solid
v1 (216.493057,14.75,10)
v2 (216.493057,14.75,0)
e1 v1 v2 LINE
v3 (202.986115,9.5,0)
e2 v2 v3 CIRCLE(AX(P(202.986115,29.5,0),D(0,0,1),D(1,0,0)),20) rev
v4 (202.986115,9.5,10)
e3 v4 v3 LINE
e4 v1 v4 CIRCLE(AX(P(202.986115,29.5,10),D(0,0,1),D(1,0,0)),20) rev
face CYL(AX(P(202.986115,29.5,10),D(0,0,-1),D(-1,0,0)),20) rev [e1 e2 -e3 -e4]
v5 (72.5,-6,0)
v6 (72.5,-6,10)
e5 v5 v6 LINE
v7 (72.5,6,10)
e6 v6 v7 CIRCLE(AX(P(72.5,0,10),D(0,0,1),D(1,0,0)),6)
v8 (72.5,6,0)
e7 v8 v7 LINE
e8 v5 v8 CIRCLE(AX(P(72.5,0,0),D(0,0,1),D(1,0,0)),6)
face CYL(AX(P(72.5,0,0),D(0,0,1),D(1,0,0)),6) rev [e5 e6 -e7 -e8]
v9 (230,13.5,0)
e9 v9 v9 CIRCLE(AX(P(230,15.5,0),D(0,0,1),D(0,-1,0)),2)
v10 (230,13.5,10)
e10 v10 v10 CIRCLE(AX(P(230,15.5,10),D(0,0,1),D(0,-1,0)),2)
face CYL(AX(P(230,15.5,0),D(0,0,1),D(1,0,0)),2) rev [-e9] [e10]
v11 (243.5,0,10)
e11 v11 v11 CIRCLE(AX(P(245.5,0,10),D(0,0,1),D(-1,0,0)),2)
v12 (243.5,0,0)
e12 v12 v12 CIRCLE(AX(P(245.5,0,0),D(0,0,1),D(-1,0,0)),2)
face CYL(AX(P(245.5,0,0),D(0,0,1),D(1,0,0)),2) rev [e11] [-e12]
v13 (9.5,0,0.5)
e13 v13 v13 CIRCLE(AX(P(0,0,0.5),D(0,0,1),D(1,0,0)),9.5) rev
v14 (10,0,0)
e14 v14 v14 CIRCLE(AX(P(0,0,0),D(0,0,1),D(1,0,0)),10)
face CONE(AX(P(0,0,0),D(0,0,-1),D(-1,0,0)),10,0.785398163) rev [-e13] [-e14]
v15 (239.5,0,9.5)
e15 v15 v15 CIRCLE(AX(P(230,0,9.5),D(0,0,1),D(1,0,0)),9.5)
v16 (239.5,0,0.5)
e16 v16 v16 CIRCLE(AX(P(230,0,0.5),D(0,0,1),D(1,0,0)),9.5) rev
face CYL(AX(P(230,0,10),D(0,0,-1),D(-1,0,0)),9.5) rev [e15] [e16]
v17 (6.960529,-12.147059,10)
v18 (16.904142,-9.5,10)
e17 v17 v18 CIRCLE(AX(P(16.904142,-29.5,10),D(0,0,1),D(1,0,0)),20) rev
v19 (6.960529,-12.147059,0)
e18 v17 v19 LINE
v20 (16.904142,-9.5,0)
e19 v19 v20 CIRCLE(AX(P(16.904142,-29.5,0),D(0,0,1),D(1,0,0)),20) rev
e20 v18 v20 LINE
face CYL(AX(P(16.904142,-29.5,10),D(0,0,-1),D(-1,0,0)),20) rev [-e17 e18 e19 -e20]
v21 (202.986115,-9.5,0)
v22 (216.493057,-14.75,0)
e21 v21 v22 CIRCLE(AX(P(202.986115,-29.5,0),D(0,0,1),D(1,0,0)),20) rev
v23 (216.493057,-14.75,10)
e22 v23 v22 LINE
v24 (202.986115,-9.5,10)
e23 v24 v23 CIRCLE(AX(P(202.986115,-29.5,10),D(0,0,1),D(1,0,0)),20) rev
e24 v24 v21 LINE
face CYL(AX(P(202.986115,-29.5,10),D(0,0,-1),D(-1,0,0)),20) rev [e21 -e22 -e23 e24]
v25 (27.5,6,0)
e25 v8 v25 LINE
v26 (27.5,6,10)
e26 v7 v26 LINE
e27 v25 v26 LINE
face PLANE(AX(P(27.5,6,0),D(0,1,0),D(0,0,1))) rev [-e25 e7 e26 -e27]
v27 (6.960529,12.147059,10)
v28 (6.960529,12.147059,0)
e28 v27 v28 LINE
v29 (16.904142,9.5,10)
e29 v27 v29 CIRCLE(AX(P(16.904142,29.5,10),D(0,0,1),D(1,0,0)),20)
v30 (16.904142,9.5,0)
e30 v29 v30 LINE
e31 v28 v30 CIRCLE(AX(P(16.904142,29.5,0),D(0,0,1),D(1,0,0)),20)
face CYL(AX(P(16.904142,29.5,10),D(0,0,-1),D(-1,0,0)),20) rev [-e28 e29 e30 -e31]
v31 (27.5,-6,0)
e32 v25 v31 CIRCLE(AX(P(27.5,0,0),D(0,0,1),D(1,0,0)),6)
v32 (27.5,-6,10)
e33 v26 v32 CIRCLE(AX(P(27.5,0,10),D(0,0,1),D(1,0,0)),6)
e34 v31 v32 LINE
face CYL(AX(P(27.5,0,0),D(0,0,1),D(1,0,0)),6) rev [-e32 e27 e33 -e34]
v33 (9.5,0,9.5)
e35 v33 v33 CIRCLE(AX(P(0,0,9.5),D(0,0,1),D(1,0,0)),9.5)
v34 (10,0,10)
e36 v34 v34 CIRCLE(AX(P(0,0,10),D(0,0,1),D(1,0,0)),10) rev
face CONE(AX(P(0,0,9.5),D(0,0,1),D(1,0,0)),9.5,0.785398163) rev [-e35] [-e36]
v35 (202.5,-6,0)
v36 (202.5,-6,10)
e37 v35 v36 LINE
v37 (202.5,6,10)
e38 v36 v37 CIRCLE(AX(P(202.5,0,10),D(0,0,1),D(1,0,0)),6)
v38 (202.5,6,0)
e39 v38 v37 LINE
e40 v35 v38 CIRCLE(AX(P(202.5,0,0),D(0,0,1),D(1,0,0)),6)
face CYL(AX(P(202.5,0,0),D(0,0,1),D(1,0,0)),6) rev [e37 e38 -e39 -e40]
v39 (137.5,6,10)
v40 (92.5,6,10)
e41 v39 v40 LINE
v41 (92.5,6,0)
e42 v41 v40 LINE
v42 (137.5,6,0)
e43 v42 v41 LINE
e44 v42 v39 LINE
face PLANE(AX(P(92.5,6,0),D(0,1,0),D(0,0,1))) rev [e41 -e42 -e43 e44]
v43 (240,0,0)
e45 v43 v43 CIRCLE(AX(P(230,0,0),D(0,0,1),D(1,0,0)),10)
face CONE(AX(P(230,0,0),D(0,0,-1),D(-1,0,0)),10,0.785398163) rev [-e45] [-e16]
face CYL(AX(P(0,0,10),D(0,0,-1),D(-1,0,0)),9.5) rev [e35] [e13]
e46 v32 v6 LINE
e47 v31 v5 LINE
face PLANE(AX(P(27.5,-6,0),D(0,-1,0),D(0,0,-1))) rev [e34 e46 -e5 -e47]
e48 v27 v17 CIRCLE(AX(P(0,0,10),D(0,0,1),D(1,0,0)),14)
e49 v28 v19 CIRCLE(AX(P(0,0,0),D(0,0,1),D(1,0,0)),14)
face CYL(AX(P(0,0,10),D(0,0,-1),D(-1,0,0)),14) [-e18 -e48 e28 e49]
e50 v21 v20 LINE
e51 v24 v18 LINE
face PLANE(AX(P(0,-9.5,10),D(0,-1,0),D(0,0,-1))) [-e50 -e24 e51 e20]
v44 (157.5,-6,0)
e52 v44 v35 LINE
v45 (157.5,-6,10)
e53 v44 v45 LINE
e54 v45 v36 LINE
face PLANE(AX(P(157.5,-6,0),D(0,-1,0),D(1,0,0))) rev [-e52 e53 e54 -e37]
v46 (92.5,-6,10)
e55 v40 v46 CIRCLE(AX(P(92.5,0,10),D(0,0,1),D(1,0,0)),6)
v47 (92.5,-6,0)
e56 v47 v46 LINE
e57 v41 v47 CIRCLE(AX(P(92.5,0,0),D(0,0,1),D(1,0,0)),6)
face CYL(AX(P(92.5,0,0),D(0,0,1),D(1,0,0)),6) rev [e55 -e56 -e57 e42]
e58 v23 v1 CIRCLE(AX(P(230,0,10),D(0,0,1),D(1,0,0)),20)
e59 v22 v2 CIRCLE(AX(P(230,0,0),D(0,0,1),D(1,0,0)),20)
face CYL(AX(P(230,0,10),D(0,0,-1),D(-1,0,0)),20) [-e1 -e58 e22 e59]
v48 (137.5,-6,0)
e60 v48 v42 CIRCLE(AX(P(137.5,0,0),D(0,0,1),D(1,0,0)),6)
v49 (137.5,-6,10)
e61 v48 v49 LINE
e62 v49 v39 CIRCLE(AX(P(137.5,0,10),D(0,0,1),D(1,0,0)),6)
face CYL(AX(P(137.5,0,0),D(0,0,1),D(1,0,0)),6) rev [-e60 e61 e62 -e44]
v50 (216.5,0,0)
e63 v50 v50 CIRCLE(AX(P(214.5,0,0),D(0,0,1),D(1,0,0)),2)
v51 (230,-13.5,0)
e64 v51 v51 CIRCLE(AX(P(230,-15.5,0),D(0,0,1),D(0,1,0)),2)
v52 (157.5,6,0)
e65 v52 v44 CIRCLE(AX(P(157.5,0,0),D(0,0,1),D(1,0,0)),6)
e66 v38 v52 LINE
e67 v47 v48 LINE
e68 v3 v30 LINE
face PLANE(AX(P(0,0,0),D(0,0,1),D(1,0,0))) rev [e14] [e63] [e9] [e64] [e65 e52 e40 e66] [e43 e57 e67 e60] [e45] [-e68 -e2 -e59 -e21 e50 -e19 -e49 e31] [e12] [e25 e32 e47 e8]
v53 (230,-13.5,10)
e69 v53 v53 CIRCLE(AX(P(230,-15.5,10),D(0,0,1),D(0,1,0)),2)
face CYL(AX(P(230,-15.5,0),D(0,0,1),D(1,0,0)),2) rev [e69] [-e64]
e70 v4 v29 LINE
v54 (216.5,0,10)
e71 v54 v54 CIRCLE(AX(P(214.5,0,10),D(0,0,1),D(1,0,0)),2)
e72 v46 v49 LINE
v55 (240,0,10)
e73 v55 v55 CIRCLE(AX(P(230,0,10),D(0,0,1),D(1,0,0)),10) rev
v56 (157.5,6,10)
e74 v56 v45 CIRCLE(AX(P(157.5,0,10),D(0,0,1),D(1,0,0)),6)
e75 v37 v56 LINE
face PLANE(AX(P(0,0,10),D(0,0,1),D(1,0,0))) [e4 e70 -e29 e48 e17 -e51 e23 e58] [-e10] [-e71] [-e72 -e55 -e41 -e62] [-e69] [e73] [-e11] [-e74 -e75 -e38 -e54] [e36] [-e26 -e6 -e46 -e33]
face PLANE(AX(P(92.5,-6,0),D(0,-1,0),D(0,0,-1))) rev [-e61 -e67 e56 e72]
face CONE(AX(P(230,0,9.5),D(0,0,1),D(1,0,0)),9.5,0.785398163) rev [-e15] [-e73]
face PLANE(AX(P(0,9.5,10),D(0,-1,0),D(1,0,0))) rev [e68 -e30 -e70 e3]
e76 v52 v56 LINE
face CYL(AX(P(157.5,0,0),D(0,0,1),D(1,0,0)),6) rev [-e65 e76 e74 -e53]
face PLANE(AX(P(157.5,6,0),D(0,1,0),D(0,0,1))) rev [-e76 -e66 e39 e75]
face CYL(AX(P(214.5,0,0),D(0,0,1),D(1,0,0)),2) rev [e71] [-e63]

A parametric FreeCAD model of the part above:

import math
import FreeCAD as App
import Part
import Sketcher
Q = App.Units.Quantity


def edges_at(feature, points):
    """Names of the edges that pass closest to the given points."""
    edges = feature.Shape.Edges
    near = lambda p: min(range(len(edges)), key=lambda i: edges[i].distToShape(Part.Vertex(*p))[0])
    return sorted({f"Edge{near(p) + 1}" for p in points})

doc = App.newDocument("Part")
params = doc.addObject("Spreadsheet::Sheet", "Params")
for row, (alias, value) in enumerate([
    ("sketch1_diameter", "19 mm"),
    ("sketch1_radius", "20 mm"),
    ("sketch1_radius2", "14 mm"),
    ("pad1_length", "10 mm"),
    ("chamfer_size", "0.5 mm"),
    ("sketch2_radius", "6 mm"),
    ("sketch2_width", "45 mm"),
    ("pocket1_length", "10 mm"),
    ("sketch3_diameter", "4 mm"),
    ("pocket2_length", "10 mm"),
    ("chamfer2_size", "0.5 mm"),
    ("sketch4_diameter", "4 mm"),
    ("pocket3_length", "10 mm"),
    ("chamfer3_size", "0.5 mm"),
    ("sketch5_diameter", "4 mm"),
    ("pad2_length", "10 mm"),
    ("sketch6_diameter", "4 mm"),
    ("pocket4_length", "10 mm"),
], start=1):
    params.set(f"A{row}", alias)
    params.set(f"B{row}", "=" + value)
    params.setAlias(f"B{row}", alias)

body = doc.addObject("PartDesign::Body", "Body")

sketch1 = doc.addObject("Sketcher::SketchObject", "Sketch")
body.addObject(sketch1)
sketch1.AttachmentSupport = (doc.XY_Plane, [""])
sketch1.MapMode = "FlatFace"
sketch1.addGeometry(Part.ArcOfCircle(Part.Circle(App.Vector(203, -29.5, 0), App.Vector(0, 0, 1), 20), math.radians(48), math.radians(90)), False)
sketch1.addGeometry(Part.ArcOfCircle(Part.Circle(App.Vector(230, 0, 0), App.Vector(0, 0, 1), 20), math.radians(-132), math.radians(132)), False)
sketch1.addGeometry(Part.ArcOfCircle(Part.Circle(App.Vector(203, 29.5, 0), App.Vector(0, 0, 1), 20), math.radians(-90), math.radians(-48)), False)
sketch1.addGeometry(Part.LineSegment(App.Vector(203, 9.5, 0), App.Vector(16.9, 9.5, 0)), False)
sketch1.addGeometry(Part.ArcOfCircle(Part.Circle(App.Vector(16.9, 29.5, 0), App.Vector(0, 0, 1), 20), math.radians(-120), math.radians(-90)), False)
sketch1.addGeometry(Part.ArcOfCircle(Part.Circle(App.Vector(0, 0, 0), App.Vector(0, 0, 1), 14), math.radians(60), math.radians(91)), False)
sketch1.addGeometry(Part.ArcOfCircle(Part.Circle(App.Vector(0, 0, 0), App.Vector(0, 0, 1), 14), math.radians(91), math.radians(284)), False)
sketch1.addGeometry(Part.ArcOfCircle(Part.Circle(App.Vector(0, 0, 0), App.Vector(0, 0, 1), 14), math.radians(-75.85), math.radians(-60.19)), False)
sketch1.addGeometry(Part.ArcOfCircle(Part.Circle(App.Vector(16.9, -29.5, 0), App.Vector(0, 0, 1), 20), math.radians(90), math.radians(120)), False)
sketch1.addGeometry(Part.LineSegment(App.Vector(16.9, -9.5, 0), App.Vector(203, -9.5, 0)), False)
sketch1.addGeometry(Part.Circle(App.Vector(0, 0, 0), App.Vector(0, 0, 1), 9.5), False)
sketch1.addGeometry(Part.Circle(App.Vector(230, 0, 0), App.Vector(0, 0, 1), 9.5), False)
sketch1.addConstraint(Sketcher.Constraint("Tangent", 0, 1, 1, 1))
sketch1.addConstraint(Sketcher.Constraint("Tangent", 1, 2, 2, 2))
sketch1.addConstraint(Sketcher.Constraint("Tangent", 2, 1, 3, 1))
sketch1.addConstraint(Sketcher.Constraint("Tangent", 3, 2, 4, 2))
sketch1.addConstraint(Sketcher.Constraint("Tangent", 4, 1, 5, 1))
sketch1.addConstraint(Sketcher.Constraint("Tangent", 5, 2, 6, 1))
sketch1.addConstraint(Sketcher.Constraint("Tangent", 6, 2, 7, 1))
sketch1.addConstraint(Sketcher.Constraint("Tangent", 7, 2, 8, 2))
sketch1.addConstraint(Sketcher.Constraint("Tangent", 8, 1, 9, 1))
sketch1.addConstraint(Sketcher.Constraint("Tangent", 9, 2, 0, 2))
sketch1.addConstraint(Sketcher.Constraint("Horizontal", 3))
sketch1.addConstraint(Sketcher.Constraint("Horizontal", 9))
sketch1.addConstraint(Sketcher.Constraint("Coincident", 5, 3, -1, 1))
sketch1.addConstraint(Sketcher.Constraint("Coincident", 7, 3, -1, 1))
sketch1.addConstraint(Sketcher.Constraint("Coincident", 10, 3, -1, 1))
sketch1.addConstraint(Sketcher.Constraint("Coincident", 11, 3, 1, 3))
sketch1.addConstraint(Sketcher.Constraint("Equal", 0, 1))
sketch1.addConstraint(Sketcher.Constraint("Equal", 1, 2))
sketch1.addConstraint(Sketcher.Constraint("Equal", 2, 4))
sketch1.addConstraint(Sketcher.Constraint("Equal", 4, 8))
sketch1.addConstraint(Sketcher.Constraint("Equal", 10, 11))
sketch1.addConstraint(Sketcher.Constraint("Symmetric", 0, 3, 2, 3, -1))
sketch1.addConstraint(Sketcher.Constraint("Diameter", 10, Q("19 mm")))
sketch1.addConstraint(Sketcher.Constraint("Radius", 0, Q("20 mm")))
sketch1.addConstraint(Sketcher.Constraint("Radius", 5, Q("14 mm")))
sketch1.addConstraint(Sketcher.Constraint("DistanceX", -1, 1, 1, 3, Q("230 mm")))
sketch1.addConstraint(Sketcher.Constraint("DistanceY", 0, 3, 2, 3, Q("59 mm")))
sketch1.addConstraint(Sketcher.Constraint("DistanceX", 5, 2, -1, 1, Q("0.229511 mm")))
sketch1.addConstraint(Sketcher.Constraint("DistanceX", -1, 1, 6, 2, Q("3.423256 mm")))
sketch1.setExpression("Constraints[22]", "Params.sketch1_diameter")
sketch1.setExpression("Constraints[23]", "Params.sketch1_radius")
sketch1.setExpression("Constraints[24]", "Params.sketch1_radius2")
pad1 = doc.addObject("PartDesign::Pad", "Pad")
body.addObject(pad1)
pad1.Profile = sketch1
pad1.setExpression("Length", "Params.pad1_length")
doc.recompute()

chamfer = doc.addObject("PartDesign::Chamfer", "Chamfer")
body.addObject(chamfer)
chamfer.Base = (pad1, edges_at(pad1, [(-9.5, 0, 0), (-9.5, 0, 10)]))
chamfer.setExpression("Size", "Params.chamfer_size")

sketch2 = doc.addObject("Sketcher::SketchObject", "Sketch001")
body.addObject(sketch2)
sketch2.AttachmentSupport = (doc.XY_Plane, [""])
sketch2.MapMode = "FlatFace"
sketch2.AttachmentOffset = App.Placement(App.Vector(0, 0, 10), App.Rotation())
sketch2.addGeometry(Part.LineSegment(App.Vector(92, -6, 0), App.Vector(138, -6, 0)), False)
sketch2.addGeometry(Part.ArcOfCircle(Part.Circle(App.Vector(138, 0, 0), App.Vector(0, 0, 1), 6), math.radians(-90), math.radians(90)), False)
sketch2.addGeometry(Part.LineSegment(App.Vector(138, 6, 0), App.Vector(92, 6, 0)), False)
sketch2.addGeometry(Part.ArcOfCircle(Part.Circle(App.Vector(92, 0, 0), App.Vector(0, 0, 1), 6), math.radians(90), math.radians(270)), False)
sketch2.addGeometry(Part.LineSegment(App.Vector(158, -6, 0), App.Vector(202, -6, 0)), False)
sketch2.addGeometry(Part.ArcOfCircle(Part.Circle(App.Vector(202, 0, 0), App.Vector(0, 0, 1), 6), math.radians(-90), math.radians(90)), False)
sketch2.addGeometry(Part.LineSegment(App.Vector(202, 6, 0), App.Vector(158, 6, 0)), False)
sketch2.addGeometry(Part.ArcOfCircle(Part.Circle(App.Vector(158, 0, 0), App.Vector(0, 0, 1), 6), math.radians(90), math.radians(270)), False)
sketch2.addGeometry(Part.LineSegment(App.Vector(28, -6, 0), App.Vector(72, -6, 0)), False)
sketch2.addGeometry(Part.ArcOfCircle(Part.Circle(App.Vector(72, 0, 0), App.Vector(0, 0, 1), 6), math.radians(-90), math.radians(90)), False)
sketch2.addGeometry(Part.LineSegment(App.Vector(72, 6, 0), App.Vector(28, 6, 0)), False)
sketch2.addGeometry(Part.ArcOfCircle(Part.Circle(App.Vector(28, 0, 0), App.Vector(0, 0, 1), 6), math.radians(90), math.radians(270)), False)
sketch2.addConstraint(Sketcher.Constraint("Tangent", 0, 2, 1, 1))
sketch2.addConstraint(Sketcher.Constraint("Tangent", 1, 2, 2, 1))
sketch2.addConstraint(Sketcher.Constraint("Tangent", 2, 2, 3, 1))
sketch2.addConstraint(Sketcher.Constraint("Tangent", 3, 2, 0, 1))
sketch2.addConstraint(Sketcher.Constraint("Tangent", 4, 2, 5, 1))
sketch2.addConstraint(Sketcher.Constraint("Tangent", 5, 2, 6, 1))
sketch2.addConstraint(Sketcher.Constraint("Tangent", 6, 2, 7, 1))
sketch2.addConstraint(Sketcher.Constraint("Tangent", 7, 2, 4, 1))
sketch2.addConstraint(Sketcher.Constraint("Tangent", 8, 2, 9, 1))
sketch2.addConstraint(Sketcher.Constraint("Tangent", 9, 2, 10, 1))
sketch2.addConstraint(Sketcher.Constraint("Tangent", 10, 2, 11, 1))
sketch2.addConstraint(Sketcher.Constraint("Tangent", 11, 2, 8, 1))
sketch2.addConstraint(Sketcher.Constraint("Horizontal", 0))
sketch2.addConstraint(Sketcher.Constraint("Horizontal", 2))
sketch2.addConstraint(Sketcher.Constraint("Horizontal", 4))
sketch2.addConstraint(Sketcher.Constraint("Horizontal", 6))
sketch2.addConstraint(Sketcher.Constraint("Horizontal", 8))
sketch2.addConstraint(Sketcher.Constraint("Horizontal", 10))
sketch2.addConstraint(Sketcher.Constraint("Equal", 3, 5))
sketch2.addConstraint(Sketcher.Constraint("Equal", 7, 9))
sketch2.addConstraint(Sketcher.Constraint("PointOnObject", 1, 3, -1))
sketch2.addConstraint(Sketcher.Constraint("PointOnObject", 5, 3, -1))
sketch2.addConstraint(Sketcher.Constraint("PointOnObject", 9, 3, -1))
sketch2.addConstraint(Sketcher.Constraint("Equal", 2, 4))
sketch2.addConstraint(Sketcher.Constraint("Equal", 6, 8))
sketch2.addConstraint(Sketcher.Constraint("Radius", 1, Q("6 mm")))
sketch2.addConstraint(Sketcher.Constraint("DistanceX", 0, 1, 0, 2, Q("45 mm")))
sketch2.addConstraint(Sketcher.Constraint("DistanceX", 1, 3, 5, 3, Q("65 mm")))
sketch2.addConstraint(Sketcher.Constraint("DistanceX", 9, 3, 3, 3, Q("20 mm")))
sketch2.addConstraint(Sketcher.Constraint("DistanceX", -1, 1, 1, 3, Q("137.5 mm")))
sketch2.setExpression("Constraints[25]", "Params.sketch2_radius")
sketch2.setExpression("Constraints[26]", "Params.sketch2_width")
pocket1 = doc.addObject("PartDesign::Pocket", "Pocket")
body.addObject(pocket1)
pocket1.Profile = sketch2
pocket1.setExpression("Length", "Params.pocket1_length")

sketch3 = doc.addObject("Sketcher::SketchObject", "Sketch002")
body.addObject(sketch3)
sketch3.AttachmentSupport = (doc.XY_Plane, [""])
sketch3.MapMode = "FlatFace"
sketch3.AttachmentOffset = App.Placement(App.Vector(0, 0, 10), App.Rotation())
sketch3.addGeometry(Part.Circle(App.Vector(245, 0, 0), App.Vector(0, 0, 1), 2), False)
sketch3.addGeometry(Part.Circle(App.Vector(237.5, 13, 0), App.Vector(0, 0, 1), 2), False)
sketch3.addGeometry(Part.Circle(App.Vector(222.5, 13, 0), App.Vector(0, 0, 1), 2), False)
sketch3.addConstraint(Sketcher.Constraint("Equal", 0, 1))
sketch3.addConstraint(Sketcher.Constraint("Equal", 1, 2))
sketch3.addConstraint(Sketcher.Constraint("PointOnObject", 0, 3, -1))
sketch3.addConstraint(Sketcher.Constraint("Horizontal", 1, 3, 2, 3))
sketch3.addConstraint(Sketcher.Constraint("Diameter", 0, Q("4 mm")))
sketch3.addConstraint(Sketcher.Constraint("DistanceX", -1, 1, 0, 3, Q("245 mm")))
sketch3.addConstraint(Sketcher.Constraint("DistanceX", 2, 3, 1, 3, Q("15 mm")))
sketch3.addConstraint(Sketcher.Constraint("DistanceX", -1, 1, 1, 3, Q("237.5 mm")))
sketch3.addConstraint(Sketcher.Constraint("DistanceY", -1, 1, 1, 3, Q("12.990381 mm")))
sketch3.setExpression("Constraints[4]", "Params.sketch3_diameter")
pocket2 = doc.addObject("PartDesign::Pocket", "Pocket001")
body.addObject(pocket2)
pocket2.Profile = sketch3
pocket2.setExpression("Length", "Params.pocket2_length")
doc.recompute()

chamfer2 = doc.addObject("PartDesign::Chamfer", "Chamfer001")
body.addObject(chamfer2)
chamfer2.Base = (pocket2, edges_at(pocket2, [(220.5, 0, 10)]))
chamfer2.setExpression("Size", "Params.chamfer2_size")

sketch4 = doc.addObject("Sketcher::SketchObject", "Sketch003")
body.addObject(sketch4)
sketch4.AttachmentSupport = (doc.XY_Plane, [""])
sketch4.MapMode = "FlatFace"
sketch4.AttachmentOffset = App.Placement(App.Vector(0, 0, 10), App.Rotation())
sketch4.addGeometry(Part.Circle(App.Vector(215, 0, 0), App.Vector(0, 0, 1), 2), False)
sketch4.addGeometry(Part.Circle(App.Vector(222.5, -13, 0), App.Vector(0, 0, 1), 2), False)
sketch4.addGeometry(Part.Circle(App.Vector(237.5, -13, 0), App.Vector(0, 0, 1), 2), False)
sketch4.addConstraint(Sketcher.Constraint("Equal", 0, 1))
sketch4.addConstraint(Sketcher.Constraint("Equal", 1, 2))
sketch4.addConstraint(Sketcher.Constraint("PointOnObject", 0, 3, -1))
sketch4.addConstraint(Sketcher.Constraint("Horizontal", 1, 3, 2, 3))
sketch4.addConstraint(Sketcher.Constraint("Diameter", 0, Q("4 mm")))
sketch4.addConstraint(Sketcher.Constraint("DistanceX", -1, 1, 0, 3, Q("215 mm")))
sketch4.addConstraint(Sketcher.Constraint("DistanceX", 1, 3, 2, 3, Q("15 mm")))
sketch4.addConstraint(Sketcher.Constraint("DistanceX", -1, 1, 1, 3, Q("222.5 mm")))
sketch4.addConstraint(Sketcher.Constraint("DistanceY", 1, 3, -1, 1, Q("12.990381 mm")))
sketch4.setExpression("Constraints[4]", "Params.sketch4_diameter")
pocket3 = doc.addObject("PartDesign::Pocket", "Pocket002")
body.addObject(pocket3)
pocket3.Profile = sketch4
pocket3.setExpression("Length", "Params.pocket3_length")
doc.recompute()

chamfer3 = doc.addObject("PartDesign::Chamfer", "Chamfer002")
body.addObject(chamfer3)
chamfer3.Base = (pocket3, edges_at(pocket3, [(220.5, 0, 0)]))
chamfer3.setExpression("Size", "Params.chamfer3_size")

sketch5 = doc.addObject("Sketcher::SketchObject", "Sketch004")
body.addObject(sketch5)
sketch5.AttachmentSupport = (doc.XY_Plane, [""])
sketch5.MapMode = "FlatFace"
sketch5.AttachmentOffset = App.Placement(App.Vector(0, 0, 10), App.Rotation())
sketch5.addGeometry(Part.Circle(App.Vector(215, 0, 0), App.Vector(0, 0, 1), 2), False)
sketch5.addGeometry(Part.Circle(App.Vector(222.5, 13, 0), App.Vector(0, 0, 1), 2), False)
sketch5.addGeometry(Part.Circle(App.Vector(237.5, 13, 0), App.Vector(0, 0, 1), 2), False)
sketch5.addGeometry(Part.Circle(App.Vector(245, 0, 0), App.Vector(0, 0, 1), 2), False)
sketch5.addGeometry(Part.Circle(App.Vector(237.5, -13, 0), App.Vector(0, 0, 1), 2), False)
sketch5.addGeometry(Part.Circle(App.Vector(222.5, -13, 0), App.Vector(0, 0, 1), 2), False)
sketch5.addConstraint(Sketcher.Constraint("Equal", 0, 1))
sketch5.addConstraint(Sketcher.Constraint("Equal", 1, 2))
sketch5.addConstraint(Sketcher.Constraint("Equal", 2, 3))
sketch5.addConstraint(Sketcher.Constraint("Equal", 3, 4))
sketch5.addConstraint(Sketcher.Constraint("Equal", 4, 5))
sketch5.addConstraint(Sketcher.Constraint("Symmetric", 2, 3, 4, 3, -1))
sketch5.addConstraint(Sketcher.Constraint("Symmetric", 1, 3, 5, 3, -1))
sketch5.addConstraint(Sketcher.Constraint("PointOnObject", 0, 3, -1))
sketch5.addConstraint(Sketcher.Constraint("PointOnObject", 3, 3, -1))
sketch5.addConstraint(Sketcher.Constraint("Horizontal", 1, 3, 2, 3))
sketch5.addConstraint(Sketcher.Constraint("Diameter", 0, Q("4 mm")))
sketch5.addConstraint(Sketcher.Constraint("DistanceX", -1, 1, 0, 3, Q("215 mm")))
sketch5.addConstraint(Sketcher.Constraint("DistanceX", -1, 1, 3, 3, Q("245 mm")))
sketch5.addConstraint(Sketcher.Constraint("DistanceX", 1, 3, 2, 3, Q("15 mm")))
sketch5.addConstraint(Sketcher.Constraint("DistanceX", -1, 1, 1, 3, Q("222.5 mm")))
sketch5.addConstraint(Sketcher.Constraint("DistanceY", -1, 1, 1, 3, Q("12.990381 mm")))
sketch5.setExpression("Constraints[10]", "Params.sketch5_diameter")
pad2 = doc.addObject("PartDesign::Pad", "Pad001")
body.addObject(pad2)
pad2.Profile = sketch5
pad2.setExpression("Length", "Params.pad2_length")
pad2.Reversed = True

sketch6 = doc.addObject("Sketcher::SketchObject", "Sketch005")
body.addObject(sketch6)
sketch6.AttachmentSupport = (doc.XY_Plane, [""])
sketch6.MapMode = "FlatFace"
sketch6.AttachmentOffset = App.Placement(App.Vector(0, 0, 10), App.Rotation())
sketch6.addGeometry(Part.Circle(App.Vector(214.5, 0, 0), App.Vector(0, 0, 1), 2), False)
sketch6.addConstraint(Sketcher.Constraint("PointOnObject", 0, 3, -1))
sketch6.addConstraint(Sketcher.Constraint("Diameter", 0, Q("4 mm")))
sketch6.addConstraint(Sketcher.Constraint("DistanceX", -1, 1, 0, 3, Q("214.5 mm")))
sketch6.setExpression("Constraints[1]", "Params.sketch6_diameter")
pocket4 = doc.addObject("PartDesign::Pocket", "Pocket003")
body.addObject(pocket4)
pocket4.Profile = sketch6
pocket4.setExpression("Length", "Params.pocket4_length")
doc.recompute()

datumline = doc.addObject("PartDesign::Line", "DatumLine")
body.addObject(datumline)
datumline.Placement = App.Placement(App.Vector(230, 0, 0), App.Rotation(App.Vector(0, 0, 1), App.Vector(0, 0, 1)))
polarpattern = doc.addObject("PartDesign::PolarPattern", "PolarPattern")
body.addObject(polarpattern)
polarpattern.Originals = [pocket4]
polarpattern.Axis = (datumline, [""])
polarpattern.Angle = 360
polarpattern.Occurrences = 4
body.Tip = polarpattern

doc.recompute()
